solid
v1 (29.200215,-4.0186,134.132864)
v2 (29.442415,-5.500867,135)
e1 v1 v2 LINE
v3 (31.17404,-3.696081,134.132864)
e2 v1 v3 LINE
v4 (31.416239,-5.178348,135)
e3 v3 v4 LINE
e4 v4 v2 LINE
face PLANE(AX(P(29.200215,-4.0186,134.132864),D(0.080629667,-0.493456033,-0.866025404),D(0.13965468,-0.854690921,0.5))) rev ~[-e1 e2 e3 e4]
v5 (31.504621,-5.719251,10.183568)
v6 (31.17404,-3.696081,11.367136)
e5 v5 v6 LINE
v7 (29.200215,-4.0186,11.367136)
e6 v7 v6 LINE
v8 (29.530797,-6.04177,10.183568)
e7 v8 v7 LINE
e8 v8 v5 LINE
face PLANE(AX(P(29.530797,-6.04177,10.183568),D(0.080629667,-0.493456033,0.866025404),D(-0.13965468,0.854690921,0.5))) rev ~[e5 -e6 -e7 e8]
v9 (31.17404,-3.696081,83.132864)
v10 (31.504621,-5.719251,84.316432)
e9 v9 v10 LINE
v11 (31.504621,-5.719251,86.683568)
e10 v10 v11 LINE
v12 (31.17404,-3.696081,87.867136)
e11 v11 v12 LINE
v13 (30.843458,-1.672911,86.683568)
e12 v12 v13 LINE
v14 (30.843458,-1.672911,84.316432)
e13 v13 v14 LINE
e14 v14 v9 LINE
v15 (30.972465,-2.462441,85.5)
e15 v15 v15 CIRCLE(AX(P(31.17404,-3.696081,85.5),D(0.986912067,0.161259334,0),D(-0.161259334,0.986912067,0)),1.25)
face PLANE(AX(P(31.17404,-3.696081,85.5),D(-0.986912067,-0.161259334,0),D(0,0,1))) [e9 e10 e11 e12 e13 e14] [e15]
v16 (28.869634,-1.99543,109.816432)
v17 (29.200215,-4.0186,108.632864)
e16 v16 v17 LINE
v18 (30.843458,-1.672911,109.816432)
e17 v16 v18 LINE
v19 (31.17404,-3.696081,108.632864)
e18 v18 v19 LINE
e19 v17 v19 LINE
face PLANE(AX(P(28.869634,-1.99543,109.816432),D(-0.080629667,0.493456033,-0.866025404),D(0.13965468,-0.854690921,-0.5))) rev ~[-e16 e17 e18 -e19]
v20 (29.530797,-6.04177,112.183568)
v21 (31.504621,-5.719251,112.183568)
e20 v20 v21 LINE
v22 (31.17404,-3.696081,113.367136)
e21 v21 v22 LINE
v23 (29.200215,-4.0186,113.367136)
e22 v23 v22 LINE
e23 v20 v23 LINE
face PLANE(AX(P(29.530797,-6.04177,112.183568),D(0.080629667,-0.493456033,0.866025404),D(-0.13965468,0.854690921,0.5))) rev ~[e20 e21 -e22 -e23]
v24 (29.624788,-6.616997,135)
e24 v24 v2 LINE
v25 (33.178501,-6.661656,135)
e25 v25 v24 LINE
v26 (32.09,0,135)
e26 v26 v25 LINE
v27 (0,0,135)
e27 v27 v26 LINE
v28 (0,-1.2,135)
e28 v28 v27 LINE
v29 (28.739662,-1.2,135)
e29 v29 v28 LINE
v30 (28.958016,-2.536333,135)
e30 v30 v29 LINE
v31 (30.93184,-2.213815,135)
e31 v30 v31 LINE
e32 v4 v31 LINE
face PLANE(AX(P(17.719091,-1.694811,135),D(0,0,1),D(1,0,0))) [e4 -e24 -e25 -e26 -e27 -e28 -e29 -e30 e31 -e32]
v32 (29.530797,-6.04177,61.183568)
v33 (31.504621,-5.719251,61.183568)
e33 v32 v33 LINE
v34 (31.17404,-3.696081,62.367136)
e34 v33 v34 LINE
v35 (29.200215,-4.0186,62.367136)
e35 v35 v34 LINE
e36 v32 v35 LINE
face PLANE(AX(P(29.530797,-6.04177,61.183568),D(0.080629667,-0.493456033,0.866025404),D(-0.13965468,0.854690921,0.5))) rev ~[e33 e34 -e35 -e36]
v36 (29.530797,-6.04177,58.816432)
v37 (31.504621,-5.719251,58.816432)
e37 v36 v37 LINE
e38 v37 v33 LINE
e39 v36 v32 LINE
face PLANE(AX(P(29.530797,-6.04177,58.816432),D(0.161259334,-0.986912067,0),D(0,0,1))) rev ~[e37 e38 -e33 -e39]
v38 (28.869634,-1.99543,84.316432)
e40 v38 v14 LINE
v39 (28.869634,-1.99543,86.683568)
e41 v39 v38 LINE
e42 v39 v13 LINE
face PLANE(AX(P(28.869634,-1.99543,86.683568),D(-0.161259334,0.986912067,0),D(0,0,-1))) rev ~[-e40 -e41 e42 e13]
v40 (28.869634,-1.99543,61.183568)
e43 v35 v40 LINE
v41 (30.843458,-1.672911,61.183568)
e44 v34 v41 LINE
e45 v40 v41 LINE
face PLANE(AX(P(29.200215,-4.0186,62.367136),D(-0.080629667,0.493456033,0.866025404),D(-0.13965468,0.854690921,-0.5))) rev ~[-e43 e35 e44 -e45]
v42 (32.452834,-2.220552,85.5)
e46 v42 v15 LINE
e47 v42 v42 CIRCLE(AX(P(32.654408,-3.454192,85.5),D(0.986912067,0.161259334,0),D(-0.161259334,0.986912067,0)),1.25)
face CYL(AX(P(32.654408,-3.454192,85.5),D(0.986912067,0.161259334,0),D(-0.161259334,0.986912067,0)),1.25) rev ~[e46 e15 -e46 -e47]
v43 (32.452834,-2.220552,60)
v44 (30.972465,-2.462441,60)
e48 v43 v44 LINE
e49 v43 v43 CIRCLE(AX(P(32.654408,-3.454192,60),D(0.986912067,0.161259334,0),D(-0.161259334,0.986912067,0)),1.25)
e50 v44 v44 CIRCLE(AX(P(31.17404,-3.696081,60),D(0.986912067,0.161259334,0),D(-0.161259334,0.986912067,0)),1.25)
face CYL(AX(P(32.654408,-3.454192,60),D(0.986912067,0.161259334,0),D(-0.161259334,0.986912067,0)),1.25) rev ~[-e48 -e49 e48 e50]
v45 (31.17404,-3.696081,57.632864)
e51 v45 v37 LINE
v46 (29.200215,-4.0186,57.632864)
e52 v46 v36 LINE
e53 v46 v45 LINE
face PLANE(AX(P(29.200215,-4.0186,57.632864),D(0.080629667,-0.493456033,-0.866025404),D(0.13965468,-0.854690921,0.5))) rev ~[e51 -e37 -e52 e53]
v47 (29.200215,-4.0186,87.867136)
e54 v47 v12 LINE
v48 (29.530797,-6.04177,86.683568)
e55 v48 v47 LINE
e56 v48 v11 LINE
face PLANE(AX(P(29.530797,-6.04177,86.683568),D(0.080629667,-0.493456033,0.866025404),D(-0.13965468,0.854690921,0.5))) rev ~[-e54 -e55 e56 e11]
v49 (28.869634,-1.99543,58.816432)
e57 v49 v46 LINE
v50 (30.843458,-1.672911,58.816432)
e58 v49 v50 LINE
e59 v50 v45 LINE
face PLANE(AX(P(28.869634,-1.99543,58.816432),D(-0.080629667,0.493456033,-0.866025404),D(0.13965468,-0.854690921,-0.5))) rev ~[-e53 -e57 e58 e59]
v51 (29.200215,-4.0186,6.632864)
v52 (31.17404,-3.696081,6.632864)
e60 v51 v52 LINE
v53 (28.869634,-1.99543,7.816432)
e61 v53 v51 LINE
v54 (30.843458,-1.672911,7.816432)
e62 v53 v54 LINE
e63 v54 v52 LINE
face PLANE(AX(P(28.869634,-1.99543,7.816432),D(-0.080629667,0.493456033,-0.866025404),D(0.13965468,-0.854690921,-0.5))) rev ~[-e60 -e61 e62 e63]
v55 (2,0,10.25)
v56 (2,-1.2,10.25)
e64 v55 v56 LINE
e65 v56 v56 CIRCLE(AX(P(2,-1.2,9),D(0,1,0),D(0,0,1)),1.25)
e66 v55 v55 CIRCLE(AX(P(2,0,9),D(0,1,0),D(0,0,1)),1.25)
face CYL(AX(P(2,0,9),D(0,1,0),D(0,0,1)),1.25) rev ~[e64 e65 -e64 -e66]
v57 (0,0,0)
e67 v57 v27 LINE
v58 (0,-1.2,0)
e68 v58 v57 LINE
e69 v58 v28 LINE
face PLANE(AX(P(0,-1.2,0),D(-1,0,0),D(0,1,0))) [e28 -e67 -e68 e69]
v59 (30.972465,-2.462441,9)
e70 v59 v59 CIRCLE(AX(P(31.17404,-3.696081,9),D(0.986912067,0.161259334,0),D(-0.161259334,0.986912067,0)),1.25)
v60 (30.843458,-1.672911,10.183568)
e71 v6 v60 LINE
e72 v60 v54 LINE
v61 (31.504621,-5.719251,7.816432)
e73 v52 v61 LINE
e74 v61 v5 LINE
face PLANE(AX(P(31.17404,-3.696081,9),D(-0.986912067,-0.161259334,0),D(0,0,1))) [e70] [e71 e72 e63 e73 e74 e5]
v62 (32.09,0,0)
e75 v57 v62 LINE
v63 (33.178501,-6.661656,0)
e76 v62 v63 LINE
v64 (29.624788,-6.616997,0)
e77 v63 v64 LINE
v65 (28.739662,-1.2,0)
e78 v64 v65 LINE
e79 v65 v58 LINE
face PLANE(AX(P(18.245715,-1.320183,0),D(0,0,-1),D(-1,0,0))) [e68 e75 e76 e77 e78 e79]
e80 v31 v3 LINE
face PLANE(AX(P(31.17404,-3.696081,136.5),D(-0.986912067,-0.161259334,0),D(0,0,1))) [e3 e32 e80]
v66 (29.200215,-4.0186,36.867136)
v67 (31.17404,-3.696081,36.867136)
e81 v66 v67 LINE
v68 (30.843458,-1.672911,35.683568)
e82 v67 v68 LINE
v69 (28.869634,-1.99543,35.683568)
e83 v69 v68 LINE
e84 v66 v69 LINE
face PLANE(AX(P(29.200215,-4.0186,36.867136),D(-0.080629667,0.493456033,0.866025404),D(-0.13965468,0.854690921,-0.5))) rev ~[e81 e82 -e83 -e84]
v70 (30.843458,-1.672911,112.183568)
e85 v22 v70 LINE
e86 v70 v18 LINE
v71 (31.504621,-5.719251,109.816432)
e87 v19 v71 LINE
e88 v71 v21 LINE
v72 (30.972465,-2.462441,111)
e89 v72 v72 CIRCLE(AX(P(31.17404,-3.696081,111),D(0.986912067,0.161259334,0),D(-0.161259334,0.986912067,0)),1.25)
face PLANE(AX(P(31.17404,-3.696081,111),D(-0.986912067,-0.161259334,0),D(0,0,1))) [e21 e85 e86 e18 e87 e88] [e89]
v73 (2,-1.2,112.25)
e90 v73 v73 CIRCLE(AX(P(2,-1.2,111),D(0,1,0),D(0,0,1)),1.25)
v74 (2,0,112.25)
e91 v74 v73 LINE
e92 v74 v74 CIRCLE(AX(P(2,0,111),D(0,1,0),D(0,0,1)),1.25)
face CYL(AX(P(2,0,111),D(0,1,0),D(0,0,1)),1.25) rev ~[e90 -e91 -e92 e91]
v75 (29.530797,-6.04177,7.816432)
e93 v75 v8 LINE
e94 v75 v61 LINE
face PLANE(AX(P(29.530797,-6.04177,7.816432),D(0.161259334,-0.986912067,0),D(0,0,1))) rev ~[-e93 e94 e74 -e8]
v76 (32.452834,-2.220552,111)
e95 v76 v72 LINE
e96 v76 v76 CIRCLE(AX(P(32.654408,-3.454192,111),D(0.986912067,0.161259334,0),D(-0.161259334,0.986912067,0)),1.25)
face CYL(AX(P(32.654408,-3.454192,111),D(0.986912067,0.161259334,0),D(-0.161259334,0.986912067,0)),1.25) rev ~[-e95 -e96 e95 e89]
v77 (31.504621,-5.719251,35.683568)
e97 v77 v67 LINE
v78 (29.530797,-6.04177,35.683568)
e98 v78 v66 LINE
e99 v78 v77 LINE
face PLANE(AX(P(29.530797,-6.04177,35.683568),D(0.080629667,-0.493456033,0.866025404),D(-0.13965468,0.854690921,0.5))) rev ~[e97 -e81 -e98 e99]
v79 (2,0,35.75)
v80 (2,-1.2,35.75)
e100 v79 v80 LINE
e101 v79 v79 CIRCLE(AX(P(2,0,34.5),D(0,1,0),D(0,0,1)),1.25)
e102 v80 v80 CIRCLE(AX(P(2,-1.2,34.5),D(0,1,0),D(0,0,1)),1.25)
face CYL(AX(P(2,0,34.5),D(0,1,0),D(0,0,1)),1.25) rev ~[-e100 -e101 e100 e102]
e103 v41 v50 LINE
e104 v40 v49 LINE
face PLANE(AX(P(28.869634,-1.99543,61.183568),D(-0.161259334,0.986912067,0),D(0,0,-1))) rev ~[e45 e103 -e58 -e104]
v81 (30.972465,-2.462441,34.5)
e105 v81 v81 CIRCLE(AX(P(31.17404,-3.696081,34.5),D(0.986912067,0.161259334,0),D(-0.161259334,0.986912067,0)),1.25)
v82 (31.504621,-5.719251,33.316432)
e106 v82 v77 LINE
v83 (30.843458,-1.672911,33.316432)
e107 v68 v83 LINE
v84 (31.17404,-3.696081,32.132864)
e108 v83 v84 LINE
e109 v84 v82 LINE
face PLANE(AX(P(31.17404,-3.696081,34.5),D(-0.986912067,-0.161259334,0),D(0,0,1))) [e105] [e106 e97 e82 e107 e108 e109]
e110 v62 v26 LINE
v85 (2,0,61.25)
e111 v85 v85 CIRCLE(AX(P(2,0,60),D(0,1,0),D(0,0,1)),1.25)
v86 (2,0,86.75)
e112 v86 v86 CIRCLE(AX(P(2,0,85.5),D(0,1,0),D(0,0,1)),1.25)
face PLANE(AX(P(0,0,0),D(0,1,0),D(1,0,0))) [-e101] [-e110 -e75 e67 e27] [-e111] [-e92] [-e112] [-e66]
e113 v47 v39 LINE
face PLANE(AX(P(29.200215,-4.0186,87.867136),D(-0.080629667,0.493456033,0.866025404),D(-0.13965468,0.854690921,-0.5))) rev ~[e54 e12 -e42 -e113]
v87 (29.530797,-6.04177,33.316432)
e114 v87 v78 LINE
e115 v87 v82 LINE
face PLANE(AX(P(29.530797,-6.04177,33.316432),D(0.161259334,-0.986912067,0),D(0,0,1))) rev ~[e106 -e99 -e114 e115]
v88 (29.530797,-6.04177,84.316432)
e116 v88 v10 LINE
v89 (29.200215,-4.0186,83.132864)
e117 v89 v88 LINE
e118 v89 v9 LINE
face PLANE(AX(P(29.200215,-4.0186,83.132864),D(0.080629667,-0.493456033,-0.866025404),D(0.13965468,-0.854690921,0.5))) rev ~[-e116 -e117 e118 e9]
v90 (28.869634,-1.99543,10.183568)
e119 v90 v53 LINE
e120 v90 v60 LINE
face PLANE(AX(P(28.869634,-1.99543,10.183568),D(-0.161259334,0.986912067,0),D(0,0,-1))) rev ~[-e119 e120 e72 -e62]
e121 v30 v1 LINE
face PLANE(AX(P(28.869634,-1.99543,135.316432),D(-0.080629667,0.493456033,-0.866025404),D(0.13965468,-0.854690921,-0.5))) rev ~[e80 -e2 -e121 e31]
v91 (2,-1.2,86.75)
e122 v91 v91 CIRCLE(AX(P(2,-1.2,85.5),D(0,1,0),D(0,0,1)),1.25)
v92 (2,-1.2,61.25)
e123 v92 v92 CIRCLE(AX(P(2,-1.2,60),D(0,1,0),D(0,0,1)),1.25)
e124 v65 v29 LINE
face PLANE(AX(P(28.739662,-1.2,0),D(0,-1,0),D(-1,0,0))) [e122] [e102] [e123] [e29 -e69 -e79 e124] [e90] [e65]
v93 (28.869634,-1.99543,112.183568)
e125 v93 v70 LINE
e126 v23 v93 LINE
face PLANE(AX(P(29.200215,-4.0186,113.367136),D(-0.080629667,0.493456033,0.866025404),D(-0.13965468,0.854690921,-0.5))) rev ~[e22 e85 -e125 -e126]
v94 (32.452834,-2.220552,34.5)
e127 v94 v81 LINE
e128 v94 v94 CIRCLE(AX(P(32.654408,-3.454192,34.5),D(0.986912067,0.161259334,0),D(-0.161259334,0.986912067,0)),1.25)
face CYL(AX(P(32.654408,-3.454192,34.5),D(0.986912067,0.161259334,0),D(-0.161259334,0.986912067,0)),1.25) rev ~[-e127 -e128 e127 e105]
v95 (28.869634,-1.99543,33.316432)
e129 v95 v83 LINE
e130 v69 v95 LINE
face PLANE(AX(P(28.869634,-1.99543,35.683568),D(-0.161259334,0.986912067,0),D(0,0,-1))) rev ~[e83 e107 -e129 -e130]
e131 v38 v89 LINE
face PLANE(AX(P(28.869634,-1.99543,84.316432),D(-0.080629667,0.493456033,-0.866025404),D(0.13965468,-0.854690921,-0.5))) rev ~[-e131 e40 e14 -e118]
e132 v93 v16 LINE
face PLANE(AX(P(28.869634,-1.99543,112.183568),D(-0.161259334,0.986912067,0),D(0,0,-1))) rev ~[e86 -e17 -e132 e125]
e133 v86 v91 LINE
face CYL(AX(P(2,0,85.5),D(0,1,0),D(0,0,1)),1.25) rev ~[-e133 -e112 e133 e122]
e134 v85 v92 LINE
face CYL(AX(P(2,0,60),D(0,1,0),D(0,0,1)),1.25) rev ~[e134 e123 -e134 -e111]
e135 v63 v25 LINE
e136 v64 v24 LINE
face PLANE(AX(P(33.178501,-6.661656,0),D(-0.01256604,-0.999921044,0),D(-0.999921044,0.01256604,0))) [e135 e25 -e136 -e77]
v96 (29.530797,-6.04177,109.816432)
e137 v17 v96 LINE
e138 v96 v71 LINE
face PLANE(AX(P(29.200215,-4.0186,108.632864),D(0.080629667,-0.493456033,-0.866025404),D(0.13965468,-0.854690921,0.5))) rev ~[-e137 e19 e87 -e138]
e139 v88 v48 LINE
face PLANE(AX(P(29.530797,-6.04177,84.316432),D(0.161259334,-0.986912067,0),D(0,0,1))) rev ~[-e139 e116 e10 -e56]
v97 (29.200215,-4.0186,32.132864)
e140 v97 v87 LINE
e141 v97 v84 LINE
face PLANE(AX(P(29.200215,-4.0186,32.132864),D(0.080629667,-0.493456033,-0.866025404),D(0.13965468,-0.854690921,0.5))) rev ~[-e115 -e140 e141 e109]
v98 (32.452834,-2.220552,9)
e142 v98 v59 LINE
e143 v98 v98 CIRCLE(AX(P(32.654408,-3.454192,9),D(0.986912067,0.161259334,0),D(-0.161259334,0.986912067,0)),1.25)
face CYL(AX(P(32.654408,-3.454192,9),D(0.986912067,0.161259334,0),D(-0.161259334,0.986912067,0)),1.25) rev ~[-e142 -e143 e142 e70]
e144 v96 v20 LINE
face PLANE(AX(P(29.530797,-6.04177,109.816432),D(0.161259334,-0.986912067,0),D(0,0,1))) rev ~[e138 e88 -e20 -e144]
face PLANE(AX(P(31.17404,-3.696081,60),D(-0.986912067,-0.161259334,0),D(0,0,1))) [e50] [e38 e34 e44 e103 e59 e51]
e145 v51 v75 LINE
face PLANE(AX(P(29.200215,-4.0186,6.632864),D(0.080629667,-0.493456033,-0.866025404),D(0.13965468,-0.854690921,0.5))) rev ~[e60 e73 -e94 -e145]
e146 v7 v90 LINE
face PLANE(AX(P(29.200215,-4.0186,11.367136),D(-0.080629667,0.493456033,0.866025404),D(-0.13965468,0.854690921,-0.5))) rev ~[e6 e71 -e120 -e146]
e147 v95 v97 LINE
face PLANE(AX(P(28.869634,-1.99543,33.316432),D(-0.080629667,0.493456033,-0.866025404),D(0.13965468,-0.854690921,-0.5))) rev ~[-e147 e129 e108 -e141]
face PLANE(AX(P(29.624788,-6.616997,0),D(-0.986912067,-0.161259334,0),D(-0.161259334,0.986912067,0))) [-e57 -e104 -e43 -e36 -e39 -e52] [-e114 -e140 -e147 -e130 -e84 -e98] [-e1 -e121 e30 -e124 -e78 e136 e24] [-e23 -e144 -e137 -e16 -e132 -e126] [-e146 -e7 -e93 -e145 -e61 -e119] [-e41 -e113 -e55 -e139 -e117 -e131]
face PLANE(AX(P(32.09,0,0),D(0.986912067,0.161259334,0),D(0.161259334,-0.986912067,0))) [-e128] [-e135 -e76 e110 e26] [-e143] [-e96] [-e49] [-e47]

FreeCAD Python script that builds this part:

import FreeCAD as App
import Part
import Sketcher
from FreeCAD import Vector
Q = App.Units.Quantity

doc = App.newDocument("Part")
body = doc.addObject("PartDesign::Body", "Body")

# Sketch on XY plane
sketch1 = body.newObject("Sketcher::SketchObject", "Sketch")
sketch1.AttachmentSupport = (doc.getObject("XY_Plane"), [""])
sketch1.MapMode = "FlatFace"
sketch1.addGeometry([
    Part.LineSegment(Vector(32.09, 0, 0), Vector(0, 0, 0)),  # 0
    Part.LineSegment(Vector(0, 0, 0), Vector(0, -1.2, 0)),  # 1
    Part.LineSegment(Vector(0, -1.2, 0), Vector(28.739662, -1.2, 0)),  # 2
    Part.LineSegment(Vector(28.739662, -1.2, 0), Vector(29.624788, -6.616997, 0)),  # 3
    Part.LineSegment(Vector(29.624788, -6.616997, 0), Vector(33.178501, -6.661656, 0)),  # 4
    Part.LineSegment(Vector(33.178501, -6.661656, 0), Vector(32.09, 0, 0)),  # 5
], False)
sketch1.addConstraint([
    Sketcher.Constraint("Coincident", 0, 2, 1, 1),
    Sketcher.Constraint("Coincident", 1, 2, 2, 1),
    Sketcher.Constraint("Coincident", 2, 2, 3, 1),
    Sketcher.Constraint("Coincident", 3, 2, 4, 1),
    Sketcher.Constraint("Coincident", 4, 2, 5, 1),
    Sketcher.Constraint("Coincident", 5, 2, 0, 1),
    Sketcher.Constraint("Horizontal", 0),
    Sketcher.Constraint("Vertical", 1),
    Sketcher.Constraint("Horizontal", 2),
    Sketcher.Constraint("Coincident", 0, 2, -1, 1),
    Sketcher.Constraint("Parallel", 3, 5),
    Sketcher.Constraint("DistanceY", 1, 2, 1, 1, 1.2),
    Sketcher.Constraint("DistanceX", 0, 2, 0, 1, 32.09),
    Sketcher.Constraint("Angle", 3, Q("-80.72 deg")),
    Sketcher.Constraint("Angle", 4, Q("-0.72 deg")),
    Sketcher.Constraint("Distance", 5, 6.75),
    Sketcher.Constraint("DistanceX", 2, 1, 2, 2, 28.739662),
])
pad1 = body.newObject("PartDesign::Pad", "Pad")
pad1.Profile = sketch1
pad1.Length = 171

# Sketch on XZ plane
sketch2 = body.newObject("Sketcher::SketchObject", "Sketch001")
sketch2.AttachmentSupport = (doc.getObject("XZ_Plane"), [""])
sketch2.MapMode = "FlatFace"
sketch2.addGeometry(Part.Circle(Vector(2, 9, 0), Vector(0, 0, 1), 1.25), False)
sketch2.addConstraint([
    Sketcher.Constraint("Diameter", 0, 2.5),
    Sketcher.Constraint("DistanceX", -1, 1, 0, 3, 2.0),
    Sketcher.Constraint("DistanceY", -1, 1, 0, 3, 9.0),
])
pocket1 = body.newObject("PartDesign::Pocket", "Pocket")
pocket1.Profile = sketch2
pocket1.Length = 50
pocket1.Reversed = True

# Sketch on an angled plane
sketch3 = body.newObject("Sketcher::SketchObject", "Sketch002")
sketch3.Placement = App.Placement(Vector(31.255513, 5.107084, 0), App.Rotation(Vector(0, 0, -1), Vector(-0.161259334, 0.986912067, 0), Vector(0.986912067, 0.161259334, 0), "ZXY"))
sketch3.addGeometry(Part.Circle(Vector(-9, -8.674812, 0), Vector(0, 0, 1), 1.25), False)
sketch3.addConstraint([
    Sketcher.Constraint("Diameter", 0, 2.5),
    Sketcher.Constraint("DistanceX", 0, 3, -1, 1, 9.0),
    Sketcher.Constraint("DistanceY", 0, 3, -1, 1, 8.674812),
])
pocket2 = body.newObject("PartDesign::Pocket", "Pocket001")
pocket2.Profile = sketch3
pocket2.Length = 50

# Sketch on an angled plane
sketch4 = body.newObject("Sketcher::SketchObject", "Sketch003")
sketch4.Placement = App.Placement(Vector(27.801321, 4.542677, 0), App.Rotation(Vector(0, 0, 1), Vector(-0.161259334, 0.986912067, 0), Vector(-0.986912067, -0.161259334, 0), "ZXY"))
sketch4.addGeometry([
    Part.LineSegment(Vector(7.816432, -6.624812, 0), Vector(6.632864, -8.674812, 0)),  # 0
    Part.LineSegment(Vector(6.632864, -8.674812, 0), Vector(7.816432, -10.724812, 0)),  # 1
    Part.LineSegment(Vector(7.816432, -10.724812, 0), Vector(10.183568, -10.724812, 0)),  # 2
    Part.LineSegment(Vector(10.183568, -10.724812, 0), Vector(11.367136, -8.674812, 0)),  # 3
    Part.LineSegment(Vector(11.367136, -8.674812, 0), Vector(10.183568, -6.624812, 0)),  # 4
    Part.LineSegment(Vector(10.183568, -6.624812, 0), Vector(7.816432, -6.624812, 0)),  # 5
], False)
sketch4.addConstraint([
    Sketcher.Constraint("Coincident", 0, 2, 1, 1),
    Sketcher.Constraint("Coincident", 1, 2, 2, 1),
    Sketcher.Constraint("Coincident", 2, 2, 3, 1),
    Sketcher.Constraint("Coincident", 3, 2, 4, 1),
    Sketcher.Constraint("Coincident", 4, 2, 5, 1),
    Sketcher.Constraint("Coincident", 5, 2, 0, 1),
    Sketcher.Constraint("Horizontal", 2),
    Sketcher.Constraint("Horizontal", 5),
    Sketcher.Constraint("Parallel", 0, 3),
    Sketcher.Constraint("Parallel", 1, 4),
    Sketcher.Constraint("Horizontal", 0, 2, 3, 2),
    Sketcher.Constraint("Vertical", 2, 2, 4, 2),
    Sketcher.Constraint("Vertical", 1, 2, 5, 2),
    Sketcher.Constraint("Angle", 0, Q("-120 deg")),
    Sketcher.Constraint("DistanceY", 2, 2, 4, 2, 4.1),
    Sketcher.Constraint("DistanceX", 2, 1, 2, 2, 2.367136),
    Sketcher.Constraint("DistanceX", -1, 1, 1, 2, 7.816432),
    Sketcher.Constraint("DistanceY", 0, 2, -1, 1, 8.674812),
])
pocket3 = body.newObject("PartDesign::Pocket", "Pocket002")
pocket3.Profile = sketch4
pocket3.Length = 2
doc.recompute()

linearpattern = body.newObject("PartDesign::LinearPattern", "LinearPattern")
linearpattern.Originals = [pocket1, pocket2, pocket3]
linearpattern.Direction = (doc.getObject("Z_Axis"), [""])
linearpattern.Mode = "offset"
linearpattern.Offset = 25.5
linearpattern.Occurrences = 7
body.Tip = linearpattern

# Sketch on XY plane
sketch5 = body.newObject("Sketcher::SketchObject", "Sketch004")
sketch5.AttachmentSupport = (doc.getObject("XY_Plane"), [""])
sketch5.MapMode = "FlatFace"
sketch5.AttachmentOffset = App.Placement(Vector(0, 0, 171), App.Rotation())
sketch5.addGeometry([
    Part.LineSegment(Vector(-11.492319, 14.44371, 0), Vector(-11.492319, -17.833333, 0)),
    Part.LineSegment(Vector(-11.492319, -17.833333, 0), Vector(46.930502, -17.833333, 0)),
    Part.LineSegment(Vector(46.930502, -17.833333, 0), Vector(46.930502, 14.44371, 0)),
    Part.LineSegment(Vector(46.930502, 14.44371, 0), Vector(-11.492319, 14.44371, 0)),
], False)
sketch5.addConstraint([
    Sketcher.Constraint("Coincident", 0, 2, 1, 1),
    Sketcher.Constraint("Coincident", 1, 2, 2, 1),
    Sketcher.Constraint("Coincident", 2, 2, 3, 1),
    Sketcher.Constraint("Coincident", 3, 2, 0, 1),
    Sketcher.Constraint("Vertical", 0),
    Sketcher.Constraint("Horizontal", 1),
    Sketcher.Constraint("Vertical", 2),
    Sketcher.Constraint("Horizontal", 3),
    Sketcher.Constraint("DistanceX", 1, 1, 1, 2, 58.422821),
    Sketcher.Constraint("DistanceY", 0, 2, 0, 1, 32.277042),
    Sketcher.Constraint("DistanceX", 0, 2, -1, 1, 11.492319),
    Sketcher.Constraint("DistanceY", -1, 1, 2, 2, 14.44371),
])
pocket4 = body.newObject("PartDesign::Pocket", "Pocket003")
pocket4.Profile = sketch5
pocket4.Length = 36

doc.recompute()
